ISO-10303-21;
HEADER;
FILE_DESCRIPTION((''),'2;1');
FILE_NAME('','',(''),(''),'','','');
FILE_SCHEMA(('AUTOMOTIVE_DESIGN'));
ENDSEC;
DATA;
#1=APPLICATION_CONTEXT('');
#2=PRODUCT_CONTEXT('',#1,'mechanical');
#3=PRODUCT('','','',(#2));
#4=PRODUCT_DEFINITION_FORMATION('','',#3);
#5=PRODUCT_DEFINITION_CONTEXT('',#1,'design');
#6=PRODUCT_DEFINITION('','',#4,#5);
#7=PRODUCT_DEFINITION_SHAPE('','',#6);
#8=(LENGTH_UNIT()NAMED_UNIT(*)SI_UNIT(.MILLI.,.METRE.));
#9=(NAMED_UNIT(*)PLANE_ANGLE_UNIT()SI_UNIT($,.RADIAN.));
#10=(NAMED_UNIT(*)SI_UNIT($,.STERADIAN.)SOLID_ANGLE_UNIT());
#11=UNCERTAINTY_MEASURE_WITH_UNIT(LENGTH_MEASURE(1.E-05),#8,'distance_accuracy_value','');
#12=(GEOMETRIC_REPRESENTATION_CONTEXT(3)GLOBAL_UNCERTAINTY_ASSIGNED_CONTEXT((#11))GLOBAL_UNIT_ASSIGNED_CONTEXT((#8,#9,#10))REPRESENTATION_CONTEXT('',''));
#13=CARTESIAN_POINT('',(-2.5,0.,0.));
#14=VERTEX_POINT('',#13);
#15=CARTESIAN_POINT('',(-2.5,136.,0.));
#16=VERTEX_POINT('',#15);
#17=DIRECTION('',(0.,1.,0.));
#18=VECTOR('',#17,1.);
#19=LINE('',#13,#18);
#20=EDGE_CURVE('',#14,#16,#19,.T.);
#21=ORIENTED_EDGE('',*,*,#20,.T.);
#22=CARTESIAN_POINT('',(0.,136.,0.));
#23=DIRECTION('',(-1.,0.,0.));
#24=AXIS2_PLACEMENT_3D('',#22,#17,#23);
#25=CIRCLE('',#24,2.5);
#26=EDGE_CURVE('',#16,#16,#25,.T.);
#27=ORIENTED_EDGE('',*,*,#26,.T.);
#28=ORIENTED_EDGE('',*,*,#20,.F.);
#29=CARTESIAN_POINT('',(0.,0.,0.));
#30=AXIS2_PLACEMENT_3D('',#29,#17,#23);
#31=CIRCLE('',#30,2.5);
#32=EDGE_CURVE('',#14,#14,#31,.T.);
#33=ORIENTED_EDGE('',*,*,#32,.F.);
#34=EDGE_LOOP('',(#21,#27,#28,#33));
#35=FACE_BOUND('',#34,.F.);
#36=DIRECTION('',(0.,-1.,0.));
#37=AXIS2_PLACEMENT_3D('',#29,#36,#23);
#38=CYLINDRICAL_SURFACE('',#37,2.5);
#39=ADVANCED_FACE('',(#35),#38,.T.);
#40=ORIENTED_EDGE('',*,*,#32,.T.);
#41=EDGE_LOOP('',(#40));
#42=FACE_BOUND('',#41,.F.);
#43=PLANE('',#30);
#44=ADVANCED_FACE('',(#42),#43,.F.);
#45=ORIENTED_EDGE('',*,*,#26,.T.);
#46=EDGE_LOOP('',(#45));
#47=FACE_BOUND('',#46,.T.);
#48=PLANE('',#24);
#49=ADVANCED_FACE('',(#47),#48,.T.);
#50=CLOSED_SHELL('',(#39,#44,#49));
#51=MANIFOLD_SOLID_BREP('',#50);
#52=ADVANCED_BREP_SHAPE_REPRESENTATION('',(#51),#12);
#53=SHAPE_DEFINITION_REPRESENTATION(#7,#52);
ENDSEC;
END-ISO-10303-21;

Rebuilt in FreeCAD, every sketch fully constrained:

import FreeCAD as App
import Part
import Sketcher
Q = App.Units.Quantity

doc = App.newDocument("Part")
body = doc.addObject("PartDesign::Body", "Body")

sketch1 = body.newObject("Sketcher::SketchObject", "Sketch")
sketch1.AttachmentSupport = (doc.getObject("XZ_Plane"), [""])
sketch1.MapMode = "FlatFace"
sketch1.addGeometry(Part.Circle(App.Vector(0, 0, 0), App.Vector(0, 0, 1), 2.5), False)
sketch1.addConstraint([
    Sketcher.Constraint("Coincident", 0, 3, -1, 1),
    Sketcher.Constraint("Diameter", 0, Q("5 mm")),
])
pad1 = body.newObject("PartDesign::Pad", "Pad")
pad1.Profile = sketch1
pad1.Length = 136
pad1.Reversed = True

doc.recompute()
